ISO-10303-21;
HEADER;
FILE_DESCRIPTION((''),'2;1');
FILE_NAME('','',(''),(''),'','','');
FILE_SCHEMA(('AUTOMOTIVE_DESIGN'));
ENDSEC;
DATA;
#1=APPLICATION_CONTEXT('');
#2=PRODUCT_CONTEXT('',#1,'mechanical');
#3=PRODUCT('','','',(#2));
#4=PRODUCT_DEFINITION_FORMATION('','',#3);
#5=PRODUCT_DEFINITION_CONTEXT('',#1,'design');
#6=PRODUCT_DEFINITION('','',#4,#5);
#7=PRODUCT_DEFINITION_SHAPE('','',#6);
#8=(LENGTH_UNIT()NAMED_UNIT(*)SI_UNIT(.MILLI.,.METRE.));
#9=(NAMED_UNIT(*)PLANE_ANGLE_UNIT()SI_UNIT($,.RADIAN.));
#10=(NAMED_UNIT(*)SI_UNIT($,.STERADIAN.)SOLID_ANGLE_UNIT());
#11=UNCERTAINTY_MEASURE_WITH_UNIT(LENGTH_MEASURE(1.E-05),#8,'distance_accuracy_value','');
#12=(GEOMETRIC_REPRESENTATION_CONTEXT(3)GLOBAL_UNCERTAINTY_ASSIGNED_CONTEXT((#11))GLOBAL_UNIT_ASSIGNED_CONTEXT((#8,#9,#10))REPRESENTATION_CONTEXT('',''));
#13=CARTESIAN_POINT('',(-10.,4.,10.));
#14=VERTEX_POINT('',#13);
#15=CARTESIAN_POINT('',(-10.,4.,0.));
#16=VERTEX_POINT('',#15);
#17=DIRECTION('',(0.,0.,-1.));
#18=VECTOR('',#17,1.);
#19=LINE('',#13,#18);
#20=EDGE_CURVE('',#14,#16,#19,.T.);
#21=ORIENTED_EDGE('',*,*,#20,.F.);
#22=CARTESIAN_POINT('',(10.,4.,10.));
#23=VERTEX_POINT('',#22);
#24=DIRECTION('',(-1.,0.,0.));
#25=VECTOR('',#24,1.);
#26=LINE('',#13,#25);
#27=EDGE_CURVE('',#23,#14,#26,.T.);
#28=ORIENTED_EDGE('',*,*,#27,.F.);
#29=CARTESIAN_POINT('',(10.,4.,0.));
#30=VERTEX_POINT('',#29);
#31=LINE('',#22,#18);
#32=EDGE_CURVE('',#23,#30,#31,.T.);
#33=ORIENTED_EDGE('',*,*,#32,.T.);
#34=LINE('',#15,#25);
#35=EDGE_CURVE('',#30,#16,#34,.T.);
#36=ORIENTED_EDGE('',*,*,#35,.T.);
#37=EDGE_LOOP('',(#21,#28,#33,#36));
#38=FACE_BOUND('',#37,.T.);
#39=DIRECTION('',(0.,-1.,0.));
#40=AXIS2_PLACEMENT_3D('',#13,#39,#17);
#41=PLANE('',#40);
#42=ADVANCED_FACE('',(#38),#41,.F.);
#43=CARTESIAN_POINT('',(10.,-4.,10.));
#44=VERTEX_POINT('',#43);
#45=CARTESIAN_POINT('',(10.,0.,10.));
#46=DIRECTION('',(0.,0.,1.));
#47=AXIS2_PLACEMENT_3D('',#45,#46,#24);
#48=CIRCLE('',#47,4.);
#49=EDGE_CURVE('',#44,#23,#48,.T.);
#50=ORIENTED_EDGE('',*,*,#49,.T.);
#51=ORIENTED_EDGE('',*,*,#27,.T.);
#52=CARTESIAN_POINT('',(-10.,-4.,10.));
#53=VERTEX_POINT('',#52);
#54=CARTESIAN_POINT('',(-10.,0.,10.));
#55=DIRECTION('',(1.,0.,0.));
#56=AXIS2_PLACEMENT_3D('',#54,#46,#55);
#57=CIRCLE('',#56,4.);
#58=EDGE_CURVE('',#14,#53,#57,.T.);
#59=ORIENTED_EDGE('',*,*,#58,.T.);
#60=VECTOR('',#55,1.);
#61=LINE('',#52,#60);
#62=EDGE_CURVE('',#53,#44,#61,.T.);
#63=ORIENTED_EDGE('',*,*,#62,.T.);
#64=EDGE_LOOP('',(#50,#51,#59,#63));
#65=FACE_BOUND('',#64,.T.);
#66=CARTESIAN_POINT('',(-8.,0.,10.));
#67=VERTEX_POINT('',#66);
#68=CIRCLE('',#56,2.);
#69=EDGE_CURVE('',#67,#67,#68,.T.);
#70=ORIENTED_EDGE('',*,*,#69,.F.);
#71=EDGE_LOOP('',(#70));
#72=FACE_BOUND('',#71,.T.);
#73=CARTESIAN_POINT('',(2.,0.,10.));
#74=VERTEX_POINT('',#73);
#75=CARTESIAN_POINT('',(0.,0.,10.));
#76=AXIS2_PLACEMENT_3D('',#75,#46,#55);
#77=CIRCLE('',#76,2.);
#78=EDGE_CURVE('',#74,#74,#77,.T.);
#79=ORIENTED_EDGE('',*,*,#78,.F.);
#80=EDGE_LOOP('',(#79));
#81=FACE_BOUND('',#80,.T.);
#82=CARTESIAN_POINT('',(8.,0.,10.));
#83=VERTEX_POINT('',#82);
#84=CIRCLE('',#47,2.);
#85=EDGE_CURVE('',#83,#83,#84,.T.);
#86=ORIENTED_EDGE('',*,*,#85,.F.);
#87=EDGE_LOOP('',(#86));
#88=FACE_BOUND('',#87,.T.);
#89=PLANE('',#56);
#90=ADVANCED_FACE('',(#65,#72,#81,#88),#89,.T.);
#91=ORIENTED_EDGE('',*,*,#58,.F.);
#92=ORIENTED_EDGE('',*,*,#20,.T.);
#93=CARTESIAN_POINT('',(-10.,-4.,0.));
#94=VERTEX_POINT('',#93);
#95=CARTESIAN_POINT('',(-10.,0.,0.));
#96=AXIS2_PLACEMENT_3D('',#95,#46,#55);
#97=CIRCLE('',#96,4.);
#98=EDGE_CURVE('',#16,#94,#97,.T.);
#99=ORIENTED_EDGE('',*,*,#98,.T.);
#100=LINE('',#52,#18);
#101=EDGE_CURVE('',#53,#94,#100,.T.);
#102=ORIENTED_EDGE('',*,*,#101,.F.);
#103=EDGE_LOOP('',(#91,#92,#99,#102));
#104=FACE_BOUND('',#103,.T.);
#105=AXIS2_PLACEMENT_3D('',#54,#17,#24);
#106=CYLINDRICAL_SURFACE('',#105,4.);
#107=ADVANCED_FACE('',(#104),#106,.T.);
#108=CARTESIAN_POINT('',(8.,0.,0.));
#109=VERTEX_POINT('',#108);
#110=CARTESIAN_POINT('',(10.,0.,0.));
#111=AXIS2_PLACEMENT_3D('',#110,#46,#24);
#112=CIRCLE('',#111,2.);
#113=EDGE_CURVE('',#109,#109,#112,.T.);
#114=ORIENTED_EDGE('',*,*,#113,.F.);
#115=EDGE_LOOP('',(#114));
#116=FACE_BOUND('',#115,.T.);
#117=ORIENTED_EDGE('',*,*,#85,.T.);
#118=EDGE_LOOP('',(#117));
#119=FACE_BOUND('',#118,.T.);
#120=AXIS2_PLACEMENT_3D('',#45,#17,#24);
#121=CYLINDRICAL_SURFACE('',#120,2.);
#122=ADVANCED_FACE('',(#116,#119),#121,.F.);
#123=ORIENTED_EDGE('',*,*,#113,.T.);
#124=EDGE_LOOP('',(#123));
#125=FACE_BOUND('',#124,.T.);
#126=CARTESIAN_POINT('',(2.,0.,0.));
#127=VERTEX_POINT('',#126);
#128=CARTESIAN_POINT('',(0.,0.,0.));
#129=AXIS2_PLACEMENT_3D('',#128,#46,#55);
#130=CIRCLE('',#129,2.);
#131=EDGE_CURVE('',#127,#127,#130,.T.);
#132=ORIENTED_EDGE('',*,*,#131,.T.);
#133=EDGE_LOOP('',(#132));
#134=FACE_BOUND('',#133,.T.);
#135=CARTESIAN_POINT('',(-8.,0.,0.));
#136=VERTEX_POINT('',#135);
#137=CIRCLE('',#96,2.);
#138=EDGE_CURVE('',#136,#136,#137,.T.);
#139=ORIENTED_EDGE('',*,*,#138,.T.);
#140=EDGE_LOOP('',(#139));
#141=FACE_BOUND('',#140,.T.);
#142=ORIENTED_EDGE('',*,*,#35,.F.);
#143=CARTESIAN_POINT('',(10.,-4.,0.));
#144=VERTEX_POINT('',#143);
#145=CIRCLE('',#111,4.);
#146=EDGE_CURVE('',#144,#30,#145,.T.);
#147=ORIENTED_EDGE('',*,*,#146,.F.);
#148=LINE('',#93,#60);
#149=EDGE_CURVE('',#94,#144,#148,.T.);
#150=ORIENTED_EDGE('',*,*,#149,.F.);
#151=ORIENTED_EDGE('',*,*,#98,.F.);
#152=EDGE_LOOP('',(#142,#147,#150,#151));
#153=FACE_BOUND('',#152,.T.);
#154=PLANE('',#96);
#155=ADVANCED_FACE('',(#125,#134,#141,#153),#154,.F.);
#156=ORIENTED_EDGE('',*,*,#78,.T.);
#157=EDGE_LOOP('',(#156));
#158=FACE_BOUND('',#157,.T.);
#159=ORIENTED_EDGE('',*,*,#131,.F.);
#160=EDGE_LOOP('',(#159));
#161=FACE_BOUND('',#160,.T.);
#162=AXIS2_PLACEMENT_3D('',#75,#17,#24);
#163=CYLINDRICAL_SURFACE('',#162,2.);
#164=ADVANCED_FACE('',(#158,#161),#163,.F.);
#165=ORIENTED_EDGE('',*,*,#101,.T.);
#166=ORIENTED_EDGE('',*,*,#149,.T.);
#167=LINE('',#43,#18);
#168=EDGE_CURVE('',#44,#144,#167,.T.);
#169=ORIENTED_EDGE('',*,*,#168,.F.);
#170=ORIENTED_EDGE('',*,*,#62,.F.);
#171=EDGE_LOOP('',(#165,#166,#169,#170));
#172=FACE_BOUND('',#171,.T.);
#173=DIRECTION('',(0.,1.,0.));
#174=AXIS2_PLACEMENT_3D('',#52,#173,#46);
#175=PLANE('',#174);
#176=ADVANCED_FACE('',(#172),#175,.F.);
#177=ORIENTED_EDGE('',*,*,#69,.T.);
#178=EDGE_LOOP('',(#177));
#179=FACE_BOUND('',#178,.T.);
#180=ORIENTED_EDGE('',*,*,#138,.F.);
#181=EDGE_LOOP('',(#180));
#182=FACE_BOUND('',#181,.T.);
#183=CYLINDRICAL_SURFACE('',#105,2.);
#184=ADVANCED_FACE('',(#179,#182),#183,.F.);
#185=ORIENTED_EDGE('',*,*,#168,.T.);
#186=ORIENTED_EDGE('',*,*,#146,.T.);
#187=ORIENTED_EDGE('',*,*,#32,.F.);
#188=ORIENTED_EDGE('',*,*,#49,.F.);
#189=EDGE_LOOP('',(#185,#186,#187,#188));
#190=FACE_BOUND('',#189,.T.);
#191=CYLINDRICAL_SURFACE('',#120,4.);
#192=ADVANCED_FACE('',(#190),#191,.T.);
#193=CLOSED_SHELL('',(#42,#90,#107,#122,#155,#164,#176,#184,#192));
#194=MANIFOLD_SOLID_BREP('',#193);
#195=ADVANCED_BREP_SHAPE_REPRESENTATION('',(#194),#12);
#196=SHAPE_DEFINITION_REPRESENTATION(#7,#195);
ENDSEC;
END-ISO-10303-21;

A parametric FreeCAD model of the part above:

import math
import FreeCAD as App
import Part
import Sketcher

doc = App.newDocument("Part")
params = doc.addObject("Spreadsheet::Sheet", "Params")
for row, (alias, value) in enumerate([
    ("sketch1_diameter", "4 mm"),
    ("sketch1_radius", "4 mm"),
    ("sketch1_width", "20 mm"),
    ("pad1_length", "10 mm"),
], start=1):
    params.set(f"A{row}", alias)
    params.set(f"B{row}", "=" + value)
    params.setAlias(f"B{row}", alias)

body = doc.addObject("PartDesign::Body", "Body")

sketch1 = body.newObject("Sketcher::SketchObject", "Sketch")
sketch1.AttachmentSupport = (doc.getObject("XY_Plane"), [""])
sketch1.MapMode = "FlatFace"
sketch1.addGeometry(Part.LineSegment(App.Vector(10, 4, 0), App.Vector(-10, 4, 0)), False)
sketch1.addGeometry(Part.ArcOfCircle(Part.Circle(App.Vector(-10, 0, 0), App.Vector(0, 0, 1), 4), math.radians(90), math.radians(270)), False)
sketch1.addGeometry(Part.LineSegment(App.Vector(-10, -4, 0), App.Vector(10, -4, 0)), False)
sketch1.addGeometry(Part.ArcOfCircle(Part.Circle(App.Vector(10, 0, 0), App.Vector(0, 0, 1), 4), math.radians(-90), math.radians(90)), False)
sketch1.addGeometry(Part.Circle(App.Vector(10, 0, 0), App.Vector(0, 0, 1), 2), False)
sketch1.addGeometry(Part.Circle(App.Vector(0, 0, 0), App.Vector(0, 0, 1), 2), False)
sketch1.addGeometry(Part.Circle(App.Vector(-10, 0, 0), App.Vector(0, 0, 1), 2), False)
sketch1.addConstraint(Sketcher.Constraint("Tangent", 0, 2, 1, 1))
sketch1.addConstraint(Sketcher.Constraint("Tangent", 1, 2, 2, 1))
sketch1.addConstraint(Sketcher.Constraint("Tangent", 2, 2, 3, 1))
sketch1.addConstraint(Sketcher.Constraint("Tangent", 3, 2, 0, 1))
sketch1.addConstraint(Sketcher.Constraint("Horizontal", 0))
sketch1.addConstraint(Sketcher.Constraint("Horizontal", 2))
sketch1.addConstraint(Sketcher.Constraint("Coincident", 5, 3, -1, 1))
sketch1.addConstraint(Sketcher.Constraint("Coincident", 4, 3, 3, 3))
sketch1.addConstraint(Sketcher.Constraint("Coincident", 6, 3, 1, 3))
sketch1.addConstraint(Sketcher.Constraint("Equal", 4, 5))
sketch1.addConstraint(Sketcher.Constraint("Equal", 5, 6))
sketch1.addConstraint(Sketcher.Constraint("Symmetric", 1, 3, 3, 3, -1, 1))
sketch1.addConstraint(Sketcher.Constraint("Diameter", 4, 4.0))
sketch1.addConstraint(Sketcher.Constraint("Radius", 1, 4.0))
sketch1.addConstraint(Sketcher.Constraint("DistanceX", 0, 2, 0, 1, 20.0))
sketch1.setExpression("Constraints[12]", "Params.sketch1_diameter")
sketch1.setExpression("Constraints[13]", "Params.sketch1_radius")
sketch1.setExpression("Constraints[14]", "Params.sketch1_width")
pad1 = body.newObject("PartDesign::Pad", "Pad")
pad1.Profile = sketch1
pad1.setExpression("Length", "Params.pad1_length")

doc.recompute()
